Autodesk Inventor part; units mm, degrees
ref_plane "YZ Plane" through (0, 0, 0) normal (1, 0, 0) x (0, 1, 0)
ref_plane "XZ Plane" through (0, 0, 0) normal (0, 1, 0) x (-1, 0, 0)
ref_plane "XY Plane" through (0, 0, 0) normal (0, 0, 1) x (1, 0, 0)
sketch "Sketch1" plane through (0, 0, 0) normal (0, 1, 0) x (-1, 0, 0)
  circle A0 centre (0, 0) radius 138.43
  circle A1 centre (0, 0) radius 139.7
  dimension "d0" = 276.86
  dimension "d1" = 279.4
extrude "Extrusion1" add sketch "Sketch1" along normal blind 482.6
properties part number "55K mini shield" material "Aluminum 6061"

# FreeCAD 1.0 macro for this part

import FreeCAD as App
import Part
import Sketcher
from FreeCAD import Vector
Q = App.Units.Quantity

doc = App.newDocument("Part")
params = doc.addObject("Spreadsheet::Sheet", "Params")
for row, (alias, value) in enumerate([
    ("sketch1_diameter", "11 in"),
    ("sketch1_diameter2", "10.9 in"),
    ("pad1_length", "19 in"),
], start=1):
    params.set(f"A{row}", alias)
    params.set(f"B{row}", "=" + value)
    params.setAlias(f"B{row}", alias)

body = doc.addObject("PartDesign::Body", "Body")

# Sketch on XZ plane
sketch1 = body.newObject("Sketcher::SketchObject", "Sketch")
sketch1.AttachmentSupport = (doc.getObject("XZ_Plane"), [""])
sketch1.MapMode = "FlatFace"
sketch1.addGeometry([
    Part.Circle(Vector(0, 0, 0), Vector(0, 0, 1), 139.7),
    Part.Circle(Vector(0, 0, 0), Vector(0, 0, 1), 138.43),
], False)
sketch1.addConstraint([
    Sketcher.Constraint("Coincident", 0, 3, -1, 1),
    Sketcher.Constraint("Coincident", 1, 3, -1, 1),
    Sketcher.Constraint("Diameter", 0, Q("11 in")),
    Sketcher.Constraint("Diameter", 1, Q("10.9 in")),
])
sketch1.setExpression("Constraints[2]", "Params.sketch1_diameter")
sketch1.setExpression("Constraints[3]", "Params.sketch1_diameter2")
pad1 = body.newObject("PartDesign::Pad", "Pad")
pad1.Profile = sketch1
pad1.setExpression("Length", "Params.pad1_length")
pad1.Reversed = True

doc.recompute()
